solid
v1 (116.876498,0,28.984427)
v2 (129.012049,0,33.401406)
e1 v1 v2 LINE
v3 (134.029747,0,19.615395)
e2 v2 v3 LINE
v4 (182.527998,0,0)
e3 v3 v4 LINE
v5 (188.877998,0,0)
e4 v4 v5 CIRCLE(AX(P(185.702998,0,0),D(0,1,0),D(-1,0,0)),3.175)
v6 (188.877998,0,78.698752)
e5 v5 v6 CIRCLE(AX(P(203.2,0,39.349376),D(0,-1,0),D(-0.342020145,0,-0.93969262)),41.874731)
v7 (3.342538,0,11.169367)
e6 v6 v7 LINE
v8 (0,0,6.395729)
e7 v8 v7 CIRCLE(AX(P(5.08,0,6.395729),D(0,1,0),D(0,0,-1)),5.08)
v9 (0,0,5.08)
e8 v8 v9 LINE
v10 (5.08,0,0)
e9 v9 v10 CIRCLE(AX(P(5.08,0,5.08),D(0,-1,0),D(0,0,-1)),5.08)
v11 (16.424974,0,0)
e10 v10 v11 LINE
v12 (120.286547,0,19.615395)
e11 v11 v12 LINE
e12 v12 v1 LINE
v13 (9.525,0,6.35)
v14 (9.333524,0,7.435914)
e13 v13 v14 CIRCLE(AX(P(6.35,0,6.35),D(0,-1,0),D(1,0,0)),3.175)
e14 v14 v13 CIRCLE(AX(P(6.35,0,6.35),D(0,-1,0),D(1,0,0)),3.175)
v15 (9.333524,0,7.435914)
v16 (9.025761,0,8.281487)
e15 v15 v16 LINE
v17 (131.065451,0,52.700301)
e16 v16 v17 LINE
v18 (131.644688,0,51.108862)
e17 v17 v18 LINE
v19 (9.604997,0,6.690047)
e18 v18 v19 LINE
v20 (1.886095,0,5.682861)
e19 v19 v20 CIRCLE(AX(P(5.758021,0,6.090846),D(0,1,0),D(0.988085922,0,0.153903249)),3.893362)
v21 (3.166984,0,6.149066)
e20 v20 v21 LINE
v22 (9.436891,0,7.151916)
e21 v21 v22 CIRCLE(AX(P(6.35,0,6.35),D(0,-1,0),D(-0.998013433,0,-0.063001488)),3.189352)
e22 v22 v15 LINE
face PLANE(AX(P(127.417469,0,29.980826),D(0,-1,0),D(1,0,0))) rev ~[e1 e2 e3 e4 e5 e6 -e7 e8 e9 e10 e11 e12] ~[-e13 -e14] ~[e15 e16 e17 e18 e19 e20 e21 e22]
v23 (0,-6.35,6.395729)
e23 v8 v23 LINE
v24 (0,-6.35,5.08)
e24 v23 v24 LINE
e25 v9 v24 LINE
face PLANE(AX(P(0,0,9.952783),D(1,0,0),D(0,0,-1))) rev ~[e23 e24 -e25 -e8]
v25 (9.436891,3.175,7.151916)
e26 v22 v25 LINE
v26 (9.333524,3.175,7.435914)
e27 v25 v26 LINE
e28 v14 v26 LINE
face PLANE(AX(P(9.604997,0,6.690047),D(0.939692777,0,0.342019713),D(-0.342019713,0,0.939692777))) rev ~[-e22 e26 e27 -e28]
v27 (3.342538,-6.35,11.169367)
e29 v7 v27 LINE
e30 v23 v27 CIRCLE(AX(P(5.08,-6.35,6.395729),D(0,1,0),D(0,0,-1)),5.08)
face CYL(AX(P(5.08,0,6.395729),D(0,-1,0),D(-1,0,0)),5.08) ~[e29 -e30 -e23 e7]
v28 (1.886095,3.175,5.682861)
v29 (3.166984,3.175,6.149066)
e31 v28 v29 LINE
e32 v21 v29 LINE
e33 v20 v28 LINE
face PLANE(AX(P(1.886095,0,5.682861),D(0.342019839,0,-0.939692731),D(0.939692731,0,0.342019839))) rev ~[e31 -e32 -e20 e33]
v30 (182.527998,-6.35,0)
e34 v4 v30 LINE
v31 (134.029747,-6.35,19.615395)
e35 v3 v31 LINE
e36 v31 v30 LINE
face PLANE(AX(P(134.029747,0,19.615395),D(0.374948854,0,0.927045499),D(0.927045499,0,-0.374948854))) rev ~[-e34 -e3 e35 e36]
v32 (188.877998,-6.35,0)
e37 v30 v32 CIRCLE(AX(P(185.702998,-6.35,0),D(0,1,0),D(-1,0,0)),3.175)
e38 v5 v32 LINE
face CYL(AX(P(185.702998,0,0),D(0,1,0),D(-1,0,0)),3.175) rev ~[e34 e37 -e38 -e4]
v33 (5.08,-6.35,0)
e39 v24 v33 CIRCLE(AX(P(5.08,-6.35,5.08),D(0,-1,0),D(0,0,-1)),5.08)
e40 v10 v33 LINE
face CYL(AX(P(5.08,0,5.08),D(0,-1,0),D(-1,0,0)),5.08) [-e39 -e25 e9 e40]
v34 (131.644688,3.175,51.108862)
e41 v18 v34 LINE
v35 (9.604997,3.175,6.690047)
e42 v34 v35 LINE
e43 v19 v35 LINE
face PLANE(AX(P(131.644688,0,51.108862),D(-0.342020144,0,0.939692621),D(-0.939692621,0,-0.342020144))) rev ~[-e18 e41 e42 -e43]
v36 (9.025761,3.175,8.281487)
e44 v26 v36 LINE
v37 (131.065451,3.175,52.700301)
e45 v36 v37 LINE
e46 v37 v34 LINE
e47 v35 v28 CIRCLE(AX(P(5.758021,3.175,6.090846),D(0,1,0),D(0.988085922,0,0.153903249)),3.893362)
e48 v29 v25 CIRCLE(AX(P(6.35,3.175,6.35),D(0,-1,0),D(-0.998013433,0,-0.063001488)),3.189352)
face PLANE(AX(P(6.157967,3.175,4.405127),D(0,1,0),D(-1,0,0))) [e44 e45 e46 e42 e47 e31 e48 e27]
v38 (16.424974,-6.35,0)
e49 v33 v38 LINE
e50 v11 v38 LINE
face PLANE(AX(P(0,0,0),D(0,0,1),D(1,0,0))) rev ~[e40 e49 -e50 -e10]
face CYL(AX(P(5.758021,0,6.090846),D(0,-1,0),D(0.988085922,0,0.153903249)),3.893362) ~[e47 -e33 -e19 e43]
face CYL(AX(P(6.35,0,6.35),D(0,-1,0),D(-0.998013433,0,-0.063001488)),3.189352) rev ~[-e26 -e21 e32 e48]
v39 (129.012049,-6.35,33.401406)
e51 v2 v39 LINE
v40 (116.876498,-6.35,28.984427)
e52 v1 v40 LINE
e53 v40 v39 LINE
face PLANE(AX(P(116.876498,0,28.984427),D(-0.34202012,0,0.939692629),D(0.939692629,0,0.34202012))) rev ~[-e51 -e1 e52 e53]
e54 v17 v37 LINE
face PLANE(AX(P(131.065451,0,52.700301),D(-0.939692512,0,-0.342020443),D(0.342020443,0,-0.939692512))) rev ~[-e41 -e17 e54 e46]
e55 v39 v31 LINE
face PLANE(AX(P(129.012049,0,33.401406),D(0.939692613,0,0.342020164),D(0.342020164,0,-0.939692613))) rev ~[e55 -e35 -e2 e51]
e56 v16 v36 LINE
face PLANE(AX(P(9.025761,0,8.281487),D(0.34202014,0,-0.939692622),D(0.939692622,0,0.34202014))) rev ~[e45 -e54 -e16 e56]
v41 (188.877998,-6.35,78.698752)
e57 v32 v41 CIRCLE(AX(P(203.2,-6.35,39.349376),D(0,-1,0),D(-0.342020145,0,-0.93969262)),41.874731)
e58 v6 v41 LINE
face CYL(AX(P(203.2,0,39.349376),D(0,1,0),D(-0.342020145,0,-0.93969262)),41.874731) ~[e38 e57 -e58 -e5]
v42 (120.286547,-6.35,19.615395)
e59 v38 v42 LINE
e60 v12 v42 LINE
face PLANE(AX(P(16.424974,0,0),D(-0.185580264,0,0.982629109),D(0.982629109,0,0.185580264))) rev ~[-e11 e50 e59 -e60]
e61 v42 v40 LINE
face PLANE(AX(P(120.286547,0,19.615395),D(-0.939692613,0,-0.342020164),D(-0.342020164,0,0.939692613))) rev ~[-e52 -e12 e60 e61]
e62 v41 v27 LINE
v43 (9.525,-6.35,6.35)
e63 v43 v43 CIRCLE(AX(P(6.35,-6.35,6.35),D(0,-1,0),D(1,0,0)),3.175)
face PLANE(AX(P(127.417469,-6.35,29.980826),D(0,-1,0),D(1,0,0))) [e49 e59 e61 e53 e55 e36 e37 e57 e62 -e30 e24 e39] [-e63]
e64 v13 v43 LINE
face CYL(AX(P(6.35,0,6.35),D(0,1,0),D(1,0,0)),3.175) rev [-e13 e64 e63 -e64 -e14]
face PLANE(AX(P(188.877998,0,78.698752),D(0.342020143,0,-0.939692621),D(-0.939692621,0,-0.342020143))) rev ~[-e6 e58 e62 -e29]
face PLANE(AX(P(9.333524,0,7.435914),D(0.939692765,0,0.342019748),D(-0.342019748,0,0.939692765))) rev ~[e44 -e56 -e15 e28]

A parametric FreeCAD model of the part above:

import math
import FreeCAD as App
import Part
import Sketcher
Q = App.Units.Quantity


def edges_at(feature, points):
    """Names of the edges that pass closest to the given points."""
    edges = feature.Shape.Edges
    near = lambda p: min(range(len(edges)), key=lambda i: edges[i].distToShape(Part.Vertex(*p))[0])
    return sorted({f"Edge{near(p) + 1}" for p in points})

doc = App.newDocument("Part")
params = doc.addObject("Spreadsheet::Sheet", "Params")
for row, (alias, value) in enumerate([
    ("sketch1_diameter", "0.25 in"),
    ("pad1_length", "0.25 in"),
    ("fillet_radius", "0.2 in"),
    ("pad2_length", "0.125 in"),
    ("pad3_length", "0.125 in"),
], start=1):
    params.set(f"A{row}", alias)
    params.set(f"B{row}", "=" + value)
    params.setAlias(f"B{row}", alias)

body = doc.addObject("PartDesign::Body", "Body")

# Sketch on XZ plane
sketch1 = doc.addObject("Sketcher::SketchObject", "Sketch")
body.addObject(sketch1)
sketch1.AttachmentSupport = (doc.XZ_Plane, [""])
sketch1.MapMode = "FlatFace"
sketch1.addGeometry([
    Part.LineSegment(App.Vector(0, 10, 0), App.Vector(0, 0, 0)),  # 0
    Part.LineSegment(App.Vector(0, 0, 0), App.Vector(16.4, 0, 0)),  # 1
    Part.LineSegment(App.Vector(16.4, 0, 0), App.Vector(120.3, 19.6, 0)),  # 2
    Part.LineSegment(App.Vector(120.3, 19.6, 0), App.Vector(116.9, 29, 0)),  # 3
    Part.LineSegment(App.Vector(116.9, 29, 0), App.Vector(129, 33.4, 0)),  # 4
    Part.LineSegment(App.Vector(129, 33.4, 0), App.Vector(134, 19.6, 0)),  # 5
    Part.LineSegment(App.Vector(134, 19.6, 0), App.Vector(182.5, 0, 0)),  # 6
    Part.ArcOfCircle(Part.Circle(App.Vector(185.7, 0, 0), App.Vector(0, 0, 1), 3.2), math.radians(0), math.radians(180)),  # 7
    Part.ArcOfCircle(Part.Circle(App.Vector(203.2, 39.3, 0), App.Vector(0, 0, 1), 41.9), math.radians(-110), math.radians(110)),  # 8
    Part.LineSegment(App.Vector(188.9, 78.7, 0), App.Vector(0, 10, 0)),  # 9
    Part.Circle(App.Vector(6.3, 6.3, 0), App.Vector(0, 0, 1), 3.2),  # 10
], False)
sketch1.addConstraint([
    Sketcher.Constraint("Coincident", 0, 2, 1, 1),
    Sketcher.Constraint("Coincident", 1, 2, 2, 1),
    Sketcher.Constraint("Coincident", 2, 2, 3, 1),
    Sketcher.Constraint("Coincident", 3, 2, 4, 1),
    Sketcher.Constraint("Coincident", 4, 2, 5, 1),
    Sketcher.Constraint("Coincident", 5, 2, 6, 1),
    Sketcher.Constraint("Coincident", 6, 2, 7, 2),
    Sketcher.Constraint("Coincident", 7, 1, 8, 1),
    Sketcher.Constraint("Tangent", 8, 2, 9, 1),
    Sketcher.Constraint("Coincident", 9, 2, 0, 1),
    Sketcher.Constraint("Vertical", 0),
    Sketcher.Constraint("Horizontal", 1),
    Sketcher.Constraint("Coincident", 0, 2, -1, 1),
    Sketcher.Constraint("Equal", 7, 10),
    Sketcher.Constraint("PointOnObject", 7, 3, -1),
    Sketcher.Constraint("PointOnObject", 6, 2, -1),
    Sketcher.Constraint("PointOnObject", 7, 1, -1),
    Sketcher.Constraint("Perpendicular", 3, 4),
    Sketcher.Constraint("Perpendicular", 4, 5),
    Sketcher.Constraint("Perpendicular", 5, 9),
    Sketcher.Constraint("Horizontal", 2, 2, 5, 2),
    Sketcher.Constraint("Vertical", 7, 1, 8, 2),
    Sketcher.Constraint("Diameter", 10, Q("0.25 in")),
    Sketcher.Constraint("DistanceX", -1, 1, 8, 3, Q("8 in")),
    Sketcher.Constraint("Angle", 3, Q("110.000001 deg")),
    Sketcher.Constraint("DistanceX", -1, 1, 10, 3, Q("0.25 in")),
    Sketcher.Constraint("DistanceY", -1, 1, 10, 3, Q("0.25 in")),
    Sketcher.Constraint("Radius", 8, Q("41.874731 mm")),
    Sketcher.Constraint("DistanceX", -1, 1, 3, 2, Q("116.876498 mm")),
    Sketcher.Constraint("DistanceX", 2, 2, 4, 2, Q("8.725502 mm")),
    Sketcher.Constraint("DistanceX", 2, 2, 5, 2, Q("13.7432 mm")),
    Sketcher.Constraint("DistanceX", 1, 1, 1, 2, Q("16.424974 mm")),
    Sketcher.Constraint("DistanceY", 2, 2, 8, 3, Q("19.733981 mm")),
])
sketch1.setExpression("Constraints[22]", "Params.sketch1_diameter")
pad1 = doc.addObject("PartDesign::Pad", "Pad")
body.addObject(pad1)
pad1.Profile = sketch1
pad1.setExpression("Length", "Params.pad1_length")
doc.recompute()

fillet = doc.addObject("PartDesign::Fillet", "Fillet")
body.addObject(fillet)
fillet.Base = (pad1, edges_at(pad1, [(0, -3.175, 9.953), (0, -3.175, 0)]))
fillet.setExpression("Radius", "Params.fillet_radius")

# Sketch on XZ plane
sketch2 = doc.addObject("Sketcher::SketchObject", "Sketch001")
body.addObject(sketch2)
sketch2.AttachmentSupport = (doc.XZ_Plane, [""])
sketch2.MapMode = "FlatFace"
sketch2.addGeometry([
    Part.LineSegment(App.Vector(9, 8.3, 0), App.Vector(131.1, 52.7, 0)),  # 0
    Part.LineSegment(App.Vector(131.1, 52.7, 0), App.Vector(131.6, 51.1, 0)),  # 1
    Part.LineSegment(App.Vector(131.6, 51.1, 0), App.Vector(9.6, 6.7, 0)),  # 2
    Part.LineSegment(App.Vector(9.6, 6.7, 0), App.Vector(9.3, 7.4, 0)),  # 3
    Part.LineSegment(App.Vector(9.3, 7.4, 0), App.Vector(9, 8.3, 0)),  # 4
], False)
sketch2.addConstraint([
    Sketcher.Constraint("Coincident", 0, 2, 1, 1),
    Sketcher.Constraint("Coincident", 1, 2, 2, 1),
    Sketcher.Constraint("Coincident", 2, 2, 3, 1),
    Sketcher.Constraint("Coincident", 3, 2, 4, 1),
    Sketcher.Constraint("Coincident", 4, 2, 0, 1),
    Sketcher.Constraint("Perpendicular", 0, 1),
    Sketcher.Constraint("Perpendicular", 1, 2),
    Sketcher.Constraint("Perpendicular", 2, 3),
    Sketcher.Constraint("Parallel", 3, 4),
    Sketcher.Constraint("Angle", 0, Q("20 deg")),
    Sketcher.Constraint("DistanceX", 3, 2, 1, 2, Q("4.8154002 in")),
    Sketcher.Constraint("DistanceY", -1, 1, 0, 2, Q("52.700301 mm")),
    Sketcher.Constraint("Distance", 4, Q("0.89984 mm")),
    Sketcher.Constraint("DistanceX", -1, 1, 0, 2, Q("131.065451 mm")),
    Sketcher.Constraint("DistanceX", -1, 1, 1, 2, Q("131.644688 mm")),
])
pad2 = doc.addObject("PartDesign::Pad", "Pad001")
body.addObject(pad2)
pad2.Profile = sketch2
pad2.setExpression("Length", "Params.pad2_length")
pad2.Reversed = True

# Sketch on XZ plane
sketch3 = doc.addObject("Sketcher::SketchObject", "Sketch002")
body.addObject(sketch3)
sketch3.AttachmentSupport = (doc.XZ_Plane, [""])
sketch3.MapMode = "FlatFace"
sketch3.addGeometry([
    Part.LineSegment(App.Vector(9.44, 7.15, 0), App.Vector(9.6, 6.69, 0)),
    Part.ArcOfCircle(Part.Circle(App.Vector(5.76, 6.09, 0), App.Vector(0, 0, 1), 3.89), math.radians(-174), math.radians(9)),
    Part.LineSegment(App.Vector(1.89, 5.68, 0), App.Vector(3.17, 6.15, 0)),
    Part.ArcOfCircle(Part.Circle(App.Vector(6.35, 6.35, 0), App.Vector(0, 0, 1), 3.19), math.radians(-176), math.radians(15)),
], False)
sketch3.addConstraint([
    Sketcher.Constraint("Coincident", 0, 2, 1, 2),
    Sketcher.Constraint("Coincident", 1, 1, 2, 1),
    Sketcher.Constraint("Coincident", 2, 2, 3, 1),
    Sketcher.Constraint("Coincident", 3, 2, 0, 1),
    Sketcher.Constraint("Perpendicular", 0, 2),
    Sketcher.Constraint("Angle", 2, Q("19.999981 deg")),
    Sketcher.Constraint("DistanceX", -1, 1, 3, 3, Q("0.25 in")),
    Sketcher.Constraint("DistanceY", -1, 1, 3, 3, Q("0.25 in")),
    Sketcher.Constraint("Radius", 1, Q("3.893362 mm")),
    Sketcher.Constraint("Radius", 3, Q("3.189352 mm")),
    Sketcher.Constraint("DistanceY", 1, 3, 0, 2, Q("0.599201 mm")),
    Sketcher.Constraint("Distance", 0, Q("0.491511 mm")),
    Sketcher.Constraint("DistanceX", -1, 1, 1, 3, Q("5.758021 mm")),
    Sketcher.Constraint("DistanceY", -1, 1, 1, 1, Q("5.682861 mm")),
])
pad3 = doc.addObject("PartDesign::Pad", "Pad002")
body.addObject(pad3)
pad3.Profile = sketch3
pad3.setExpression("Length", "Params.pad3_length")
pad3.Reversed = True

doc.recompute()
